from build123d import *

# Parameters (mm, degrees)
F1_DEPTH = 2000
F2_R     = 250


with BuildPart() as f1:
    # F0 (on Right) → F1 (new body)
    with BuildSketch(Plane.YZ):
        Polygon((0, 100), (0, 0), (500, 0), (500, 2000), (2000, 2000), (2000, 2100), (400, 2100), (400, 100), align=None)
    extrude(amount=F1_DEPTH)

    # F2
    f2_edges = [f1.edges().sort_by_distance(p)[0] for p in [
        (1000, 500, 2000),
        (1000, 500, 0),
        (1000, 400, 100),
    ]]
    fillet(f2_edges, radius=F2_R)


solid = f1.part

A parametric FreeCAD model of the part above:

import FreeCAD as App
import Part
import Sketcher

V = App.Vector


def edges_at(feature, points):
    """Names of the edges that pass closest to the given points."""
    edges = feature.Shape.Edges
    near = lambda p: min(range(len(edges)), key=lambda i: edges[i].distToShape(Part.Vertex(*p))[0])
    return sorted({f"Edge{near(p) + 1}" for p in points})


def add_polygon(sketch, points):
    """Adds a closed chain of lines whose ends are joined by coincident constraints."""
    first, n = sketch.GeometryCount, len(points)
    for a, b in zip(points, points[1:] + points[:1]):
        sketch.addGeometry(Part.LineSegment(App.Vector(*a, 0), App.Vector(*b, 0)), False)
    for i in range(n):
        sketch.addConstraint(Sketcher.Constraint("Coincident", first + i, 2, first + (i + 1) % n, 1))

doc = App.newDocument("Part")
body = doc.addObject("PartDesign::Body", "Body")

# Sketch on YZ plane
sketch1 = body.newObject("Sketcher::SketchObject", "Sketch")
sketch1.AttachmentSupport = (doc.getObject("YZ_Plane"), [""])
sketch1.MapMode = "FlatFace"
add_polygon(sketch1, [(0, 100), (0, 0), (500, 0), (500, 2000), (2000, 2000), (2000, 2100), (400, 2100), (400, 100)])  # lines 0-7
sketch1.addConstraint(Sketcher.Constraint("Vertical", 0))
sketch1.addConstraint(Sketcher.Constraint("Horizontal", 1))
sketch1.addConstraint(Sketcher.Constraint("Vertical", 2))
sketch1.addConstraint(Sketcher.Constraint("Horizontal", 3))
sketch1.addConstraint(Sketcher.Constraint("Vertical", 4))
sketch1.addConstraint(Sketcher.Constraint("Horizontal", 5))
sketch1.addConstraint(Sketcher.Constraint("Vertical", 6))
sketch1.addConstraint(Sketcher.Constraint("Horizontal", 7))
sketch1.addConstraint(Sketcher.Constraint("Coincident", 0, 2, -1, 1))
sketch1.addConstraint(Sketcher.Constraint("Equal", 0, 4))
sketch1.addConstraint(Sketcher.Constraint("DistanceX", 1, 1, 1, 2, 500.0))
sketch1.addConstraint(Sketcher.Constraint("DistanceX", 3, 1, 3, 2, 1500.0))
sketch1.addConstraint(Sketcher.Constraint("DistanceX", 5, 2, 5, 1, 1600.0))
sketch1.addConstraint(Sketcher.Constraint("DistanceY", 0, 2, 0, 1, 100.0))
sketch1.addConstraint(Sketcher.Constraint("DistanceY", 2, 1, 2, 2, 2000.0))
pad1 = body.newObject("PartDesign::Pad", "Pad")
pad1.Profile = sketch1
pad1.Length = 2000
doc.recompute()

fillet = body.newObject("PartDesign::Fillet", "Fillet")
fillet.Base = (pad1, edges_at(pad1, [(1000, 500, 2000), (1000, 500, 0), (1000, 400, 100)]))
fillet.Radius = 250

doc.recompute()
